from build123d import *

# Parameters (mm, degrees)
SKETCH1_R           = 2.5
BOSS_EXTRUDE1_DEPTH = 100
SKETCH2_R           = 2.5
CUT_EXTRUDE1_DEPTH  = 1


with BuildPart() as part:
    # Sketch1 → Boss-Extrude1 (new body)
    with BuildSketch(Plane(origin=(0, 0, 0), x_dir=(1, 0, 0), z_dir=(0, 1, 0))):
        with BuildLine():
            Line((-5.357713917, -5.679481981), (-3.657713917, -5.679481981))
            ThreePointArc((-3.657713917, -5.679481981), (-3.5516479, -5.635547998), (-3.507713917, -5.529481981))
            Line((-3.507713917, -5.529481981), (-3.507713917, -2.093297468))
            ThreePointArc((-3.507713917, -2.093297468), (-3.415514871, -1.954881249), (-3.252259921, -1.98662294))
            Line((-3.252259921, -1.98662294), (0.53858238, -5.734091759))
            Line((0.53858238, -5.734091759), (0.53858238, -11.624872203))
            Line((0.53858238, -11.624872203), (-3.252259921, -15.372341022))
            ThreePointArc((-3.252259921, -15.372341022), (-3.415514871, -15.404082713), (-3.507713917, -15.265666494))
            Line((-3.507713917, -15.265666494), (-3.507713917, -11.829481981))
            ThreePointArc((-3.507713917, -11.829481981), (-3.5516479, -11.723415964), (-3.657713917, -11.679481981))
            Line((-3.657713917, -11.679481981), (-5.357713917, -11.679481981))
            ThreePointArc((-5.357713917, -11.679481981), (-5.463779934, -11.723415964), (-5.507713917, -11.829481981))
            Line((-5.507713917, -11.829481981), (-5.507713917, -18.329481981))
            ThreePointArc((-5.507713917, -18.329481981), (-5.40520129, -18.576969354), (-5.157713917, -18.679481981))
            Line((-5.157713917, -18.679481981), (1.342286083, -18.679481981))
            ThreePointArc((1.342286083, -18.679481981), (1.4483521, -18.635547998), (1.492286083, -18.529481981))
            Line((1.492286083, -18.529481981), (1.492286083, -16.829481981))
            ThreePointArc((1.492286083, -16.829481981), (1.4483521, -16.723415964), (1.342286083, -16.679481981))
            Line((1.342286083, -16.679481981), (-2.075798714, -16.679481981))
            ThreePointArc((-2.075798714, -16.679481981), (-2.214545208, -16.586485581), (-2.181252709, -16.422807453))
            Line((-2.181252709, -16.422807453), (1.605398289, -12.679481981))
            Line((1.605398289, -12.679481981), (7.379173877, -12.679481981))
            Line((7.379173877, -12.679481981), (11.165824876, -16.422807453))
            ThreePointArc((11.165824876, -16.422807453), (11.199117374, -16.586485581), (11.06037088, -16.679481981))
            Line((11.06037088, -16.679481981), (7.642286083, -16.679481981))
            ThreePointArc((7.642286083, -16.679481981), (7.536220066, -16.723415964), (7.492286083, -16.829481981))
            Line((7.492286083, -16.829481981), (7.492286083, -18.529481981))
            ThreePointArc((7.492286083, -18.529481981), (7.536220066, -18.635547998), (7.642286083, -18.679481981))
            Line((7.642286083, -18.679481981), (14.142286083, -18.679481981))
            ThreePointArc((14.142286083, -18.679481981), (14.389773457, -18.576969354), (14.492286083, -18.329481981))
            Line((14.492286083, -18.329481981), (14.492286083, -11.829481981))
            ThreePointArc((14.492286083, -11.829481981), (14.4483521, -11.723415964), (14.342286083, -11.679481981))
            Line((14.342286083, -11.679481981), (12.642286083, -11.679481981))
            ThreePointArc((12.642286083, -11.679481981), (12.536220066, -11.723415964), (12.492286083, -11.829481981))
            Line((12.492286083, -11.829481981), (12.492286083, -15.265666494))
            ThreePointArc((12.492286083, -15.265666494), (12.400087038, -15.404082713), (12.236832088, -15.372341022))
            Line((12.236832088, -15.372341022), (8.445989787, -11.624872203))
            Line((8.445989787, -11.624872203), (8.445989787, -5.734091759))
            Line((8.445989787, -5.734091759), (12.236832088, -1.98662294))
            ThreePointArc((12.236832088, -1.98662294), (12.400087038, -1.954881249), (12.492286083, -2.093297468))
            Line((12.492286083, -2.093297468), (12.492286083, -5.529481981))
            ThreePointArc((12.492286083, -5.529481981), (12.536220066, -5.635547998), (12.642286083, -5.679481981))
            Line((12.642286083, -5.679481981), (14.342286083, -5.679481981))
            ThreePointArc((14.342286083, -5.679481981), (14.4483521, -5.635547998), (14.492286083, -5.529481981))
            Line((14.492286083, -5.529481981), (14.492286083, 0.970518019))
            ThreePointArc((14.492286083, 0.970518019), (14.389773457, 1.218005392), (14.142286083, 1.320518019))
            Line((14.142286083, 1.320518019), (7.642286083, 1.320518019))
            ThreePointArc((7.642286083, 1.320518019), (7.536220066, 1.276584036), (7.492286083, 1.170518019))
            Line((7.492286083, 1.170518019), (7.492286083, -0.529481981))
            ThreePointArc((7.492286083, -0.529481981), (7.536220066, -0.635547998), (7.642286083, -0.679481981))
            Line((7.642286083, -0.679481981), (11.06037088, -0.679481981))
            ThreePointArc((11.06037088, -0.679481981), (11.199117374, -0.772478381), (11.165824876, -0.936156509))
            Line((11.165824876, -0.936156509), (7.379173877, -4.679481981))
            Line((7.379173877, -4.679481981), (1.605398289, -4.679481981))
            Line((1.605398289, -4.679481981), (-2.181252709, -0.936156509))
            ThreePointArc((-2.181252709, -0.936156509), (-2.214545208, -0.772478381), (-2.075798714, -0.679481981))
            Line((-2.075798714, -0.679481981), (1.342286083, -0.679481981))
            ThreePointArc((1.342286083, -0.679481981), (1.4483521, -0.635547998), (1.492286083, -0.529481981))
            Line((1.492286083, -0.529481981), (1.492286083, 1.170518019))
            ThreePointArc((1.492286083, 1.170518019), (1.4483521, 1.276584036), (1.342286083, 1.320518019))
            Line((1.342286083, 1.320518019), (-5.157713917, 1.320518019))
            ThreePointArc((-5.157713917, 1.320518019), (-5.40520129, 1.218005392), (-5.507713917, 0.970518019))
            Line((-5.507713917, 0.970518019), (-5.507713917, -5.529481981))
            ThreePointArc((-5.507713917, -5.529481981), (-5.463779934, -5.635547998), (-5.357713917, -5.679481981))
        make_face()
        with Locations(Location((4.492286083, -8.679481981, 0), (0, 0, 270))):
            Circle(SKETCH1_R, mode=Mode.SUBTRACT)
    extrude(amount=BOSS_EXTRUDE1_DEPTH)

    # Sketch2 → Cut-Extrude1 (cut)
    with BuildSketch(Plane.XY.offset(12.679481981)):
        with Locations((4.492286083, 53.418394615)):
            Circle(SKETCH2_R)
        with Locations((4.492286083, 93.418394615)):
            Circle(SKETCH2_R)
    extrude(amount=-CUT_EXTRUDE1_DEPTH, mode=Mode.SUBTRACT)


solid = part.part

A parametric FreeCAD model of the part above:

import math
import FreeCAD as App
import Part
import Sketcher

doc = App.newDocument("Part")
body = doc.addObject("PartDesign::Body", "Body")

sketch1 = body.newObject("Sketcher::SketchObject", "Sketch")
sketch1.AttachmentSupport = (doc.getObject("XZ_Plane"), [""])
sketch1.MapMode = "FlatFace"
sketch1.addGeometry([
    Part.LineSegment(App.Vector(-5.357714, 5.679482, 0), App.Vector(-3.657714, 5.679482, 0)),
    Part.ArcOfCircle(Part.Circle(App.Vector(-3.657714, 5.529482, 0), App.Vector(0, 0, 1), 0.15), math.radians(0), math.radians(90)),
    Part.LineSegment(App.Vector(-3.507714, 5.529482, 0), App.Vector(-3.507714, 2.093297, 0)),
    Part.ArcOfCircle(Part.Circle(App.Vector(-3.357714, 2.093297, 0), App.Vector(0, 0, 1), 0.15), math.radians(-180), math.radians(-45.329662)),
    Part.LineSegment(App.Vector(-3.25226, 1.986623, 0), App.Vector(0.538582, 5.734092, 0)),
    Part.LineSegment(App.Vector(0.538582, 5.734092, 0), App.Vector(0.538582, 11.624872, 0)),
    Part.LineSegment(App.Vector(0.538582, 11.624872, 0), App.Vector(-3.25226, 15.372341, 0)),
    Part.ArcOfCircle(Part.Circle(App.Vector(-3.357714, 15.265666, 0), App.Vector(0, 0, 1), 0.15), math.radians(45.329662), math.radians(180)),
    Part.LineSegment(App.Vector(-3.507714, 15.265666, 0), App.Vector(-3.507714, 11.829482, 0)),
    Part.ArcOfCircle(Part.Circle(App.Vector(-3.657714, 11.829482, 0), App.Vector(0, 0, 1), 0.15), math.radians(-90), math.radians(0)),
    Part.LineSegment(App.Vector(-3.657714, 11.679482, 0), App.Vector(-5.357714, 11.679482, 0)),
    Part.ArcOfCircle(Part.Circle(App.Vector(-5.357714, 11.829482, 0), App.Vector(0, 0, 1), 0.15), math.radians(-180), math.radians(-90)),
    Part.LineSegment(App.Vector(-5.507714, 11.829482, 0), App.Vector(-5.507714, 18.329482, 0)),
    Part.ArcOfCircle(Part.Circle(App.Vector(-5.157714, 18.329482, 0), App.Vector(0, 0, 1), 0.35), math.radians(90), math.radians(180)),
    Part.LineSegment(App.Vector(-5.157714, 18.679482, 0), App.Vector(1.342286, 18.679482, 0)),
    Part.ArcOfCircle(Part.Circle(App.Vector(1.342286, 18.529482, 0), App.Vector(0, 0, 1), 0.15), math.radians(0), math.radians(90)),
    Part.LineSegment(App.Vector(1.492286, 18.529482, 0), App.Vector(1.492286, 16.829482, 0)),
    Part.ArcOfCircle(Part.Circle(App.Vector(1.342286, 16.829482, 0), App.Vector(0, 0, 1), 0.15), math.radians(-90), math.radians(0)),
    Part.LineSegment(App.Vector(1.342286, 16.679482, 0), App.Vector(-2.075799, 16.679482, 0)),
    Part.ArcOfCircle(Part.Circle(App.Vector(-2.075799, 16.529482, 0), App.Vector(0, 0, 1), 0.15), math.radians(90), math.radians(225.329662)),
    Part.LineSegment(App.Vector(-2.181253, 16.422807, 0), App.Vector(1.605398, 12.679482, 0)),
    Part.LineSegment(App.Vector(1.605398, 12.679482, 0), App.Vector(7.379174, 12.679482, 0)),
    Part.LineSegment(App.Vector(7.379174, 12.679482, 0), App.Vector(11.165825, 16.422807, 0)),
    Part.ArcOfCircle(Part.Circle(App.Vector(11.060371, 16.529482, 0), App.Vector(0, 0, 1), 0.15), math.radians(-45.329661), math.radians(90)),
    Part.LineSegment(App.Vector(11.060371, 16.679482, 0), App.Vector(7.642286, 16.679482, 0)),
    Part.ArcOfCircle(Part.Circle(App.Vector(7.642286, 16.829482, 0), App.Vector(0, 0, 1), 0.15), math.radians(-180), math.radians(-90)),
    Part.LineSegment(App.Vector(7.492286, 16.829482, 0), App.Vector(7.492286, 18.529482, 0)),
    Part.ArcOfCircle(Part.Circle(App.Vector(7.642286, 18.529482, 0), App.Vector(0, 0, 1), 0.15), math.radians(90), math.radians(180)),
    Part.LineSegment(App.Vector(7.642286, 18.679482, 0), App.Vector(14.142286, 18.679482, 0)),
    Part.ArcOfCircle(Part.Circle(App.Vector(14.142286, 18.329482, 0), App.Vector(0, 0, 1), 0.35), math.radians(0), math.radians(90)),
    Part.LineSegment(App.Vector(14.492286, 18.329482, 0), App.Vector(14.492286, 11.829482, 0)),
    Part.ArcOfCircle(Part.Circle(App.Vector(14.342286, 11.829482, 0), App.Vector(0, 0, 1), 0.15), math.radians(-90), math.radians(0)),
    Part.LineSegment(App.Vector(14.342286, 11.679482, 0), App.Vector(12.642286, 11.679482, 0)),
    Part.ArcOfCircle(Part.Circle(App.Vector(12.642286, 11.829482, 0), App.Vector(0, 0, 1), 0.15), math.radians(-180), math.radians(-90)),
    Part.LineSegment(App.Vector(12.492286, 11.829482, 0), App.Vector(12.492286, 15.265666, 0)),
    Part.ArcOfCircle(Part.Circle(App.Vector(12.342286, 15.265666, 0), App.Vector(0, 0, 1), 0.15), math.radians(0), math.radians(134.670338)),
    Part.LineSegment(App.Vector(12.236832, 15.372341, 0), App.Vector(8.44599, 11.624872, 0)),
    Part.LineSegment(App.Vector(8.44599, 11.624872, 0), App.Vector(8.44599, 5.734092, 0)),
    Part.LineSegment(App.Vector(8.44599, 5.734092, 0), App.Vector(12.236832, 1.986623, 0)),
    Part.ArcOfCircle(Part.Circle(App.Vector(12.342286, 2.093297, 0), App.Vector(0, 0, 1), 0.15), math.radians(-134.670338), math.radians(0)),
    Part.LineSegment(App.Vector(12.492286, 2.093297, 0), App.Vector(12.492286, 5.529482, 0)),
    Part.ArcOfCircle(Part.Circle(App.Vector(12.642286, 5.529482, 0), App.Vector(0, 0, 1), 0.15), math.radians(90), math.radians(180)),
    Part.LineSegment(App.Vector(12.642286, 5.679482, 0), App.Vector(14.342286, 5.679482, 0)),
    Part.ArcOfCircle(Part.Circle(App.Vector(14.342286, 5.529482, 0), App.Vector(0, 0, 1), 0.15), math.radians(0), math.radians(90)),
    Part.LineSegment(App.Vector(14.492286, 5.529482, 0), App.Vector(14.492286, -0.970518, 0)),
    Part.ArcOfCircle(Part.Circle(App.Vector(14.142286, -0.970518, 0), App.Vector(0, 0, 1), 0.35), math.radians(-90), math.radians(0)),
    Part.LineSegment(App.Vector(14.142286, -1.320518, 0), App.Vector(7.642286, -1.320518, 0)),
    Part.ArcOfCircle(Part.Circle(App.Vector(7.642286, -1.170518, 0), App.Vector(0, 0, 1), 0.15), math.radians(-180), math.radians(-90)),
    Part.LineSegment(App.Vector(7.492286, -1.170518, 0), App.Vector(7.492286, 0.529482, 0)),
    Part.ArcOfCircle(Part.Circle(App.Vector(7.642286, 0.529482, 0), App.Vector(0, 0, 1), 0.15), math.radians(90), math.radians(180)),
    Part.LineSegment(App.Vector(7.642286, 0.679482, 0), App.Vector(11.060371, 0.679482, 0)),
    Part.ArcOfCircle(Part.Circle(App.Vector(11.060371, 0.829482, 0), App.Vector(0, 0, 1), 0.15), math.radians(-90), math.radians(45.329661)),
    Part.LineSegment(App.Vector(11.165825, 0.936157, 0), App.Vector(7.379174, 4.679482, 0)),
    Part.LineSegment(App.Vector(7.379174, 4.679482, 0), App.Vector(1.605398, 4.679482, 0)),
    Part.LineSegment(App.Vector(1.605398, 4.679482, 0), App.Vector(-2.181253, 0.936157, 0)),
    Part.ArcOfCircle(Part.Circle(App.Vector(-2.075799, 0.829482, 0), App.Vector(0, 0, 1), 0.15), math.radians(134.670338), math.radians(270)),
    Part.LineSegment(App.Vector(-2.075799, 0.679482, 0), App.Vector(1.342286, 0.679482, 0)),
    Part.ArcOfCircle(Part.Circle(App.Vector(1.342286, 0.529482, 0), App.Vector(0, 0, 1), 0.15), math.radians(0), math.radians(90)),
    Part.LineSegment(App.Vector(1.492286, 0.529482, 0), App.Vector(1.492286, -1.170518, 0)),
    Part.ArcOfCircle(Part.Circle(App.Vector(1.342286, -1.170518, 0), App.Vector(0, 0, 1), 0.15), math.radians(-90), math.radians(0)),
    Part.LineSegment(App.Vector(1.342286, -1.320518, 0), App.Vector(-5.157714, -1.320518, 0)),
    Part.ArcOfCircle(Part.Circle(App.Vector(-5.157714, -0.970518, 0), App.Vector(0, 0, 1), 0.35), math.radians(-180), math.radians(-90)),
    Part.LineSegment(App.Vector(-5.507714, -0.970518, 0), App.Vector(-5.507714, 5.529482, 0)),
    Part.ArcOfCircle(Part.Circle(App.Vector(-5.357714, 5.529482, 0), App.Vector(0, 0, 1), 0.15), math.radians(90), math.radians(180)),
    Part.Circle(App.Vector(4.492286, 8.679482, 0), App.Vector(0, 0, 1), 2.5),
], False)
sketch1.addConstraint([
    Sketcher.Constraint("Tangent", 0, 2, 1, 2),
    Sketcher.Constraint("Tangent", 1, 1, 2, 1),
    Sketcher.Constraint("Tangent", 2, 2, 3, 1),
    Sketcher.Constraint("Tangent", 3, 2, 4, 1),
    Sketcher.Constraint("Coincident", 4, 2, 5, 1),
    Sketcher.Constraint("Coincident", 5, 2, 6, 1),
    Sketcher.Constraint("Tangent", 6, 2, 7, 1),
    Sketcher.Constraint("Tangent", 7, 2, 8, 1),
    Sketcher.Constraint("Tangent", 8, 2, 9, 2),
    Sketcher.Constraint("Tangent", 9, 1, 10, 1),
    Sketcher.Constraint("Tangent", 10, 2, 11, 2),
    Sketcher.Constraint("Tangent", 11, 1, 12, 1),
    Sketcher.Constraint("Tangent", 12, 2, 13, 2),
    Sketcher.Constraint("Tangent", 13, 1, 14, 1),
    Sketcher.Constraint("Tangent", 14, 2, 15, 2),
    Sketcher.Constraint("Tangent", 15, 1, 16, 1),
    Sketcher.Constraint("Tangent", 16, 2, 17, 2),
    Sketcher.Constraint("Tangent", 17, 1, 18, 1),
    Sketcher.Constraint("Tangent", 18, 2, 19, 1),
    Sketcher.Constraint("Tangent", 19, 2, 20, 1),
    Sketcher.Constraint("Coincident", 20, 2, 21, 1),
    Sketcher.Constraint("Coincident", 21, 2, 22, 1),
    Sketcher.Constraint("Tangent", 22, 2, 23, 1),
    Sketcher.Constraint("Tangent", 23, 2, 24, 1),
    Sketcher.Constraint("Tangent", 24, 2, 25, 2),
    Sketcher.Constraint("Tangent", 25, 1, 26, 1),
    Sketcher.Constraint("Tangent", 26, 2, 27, 2),
    Sketcher.Constraint("Tangent", 27, 1, 28, 1),
    Sketcher.Constraint("Tangent", 28, 2, 29, 2),
    Sketcher.Constraint("Tangent", 29, 1, 30, 1),
    Sketcher.Constraint("Tangent", 30, 2, 31, 2),
    Sketcher.Constraint("Tangent", 31, 1, 32, 1),
    Sketcher.Constraint("Tangent", 32, 2, 33, 2),
    Sketcher.Constraint("Tangent", 33, 1, 34, 1),
    Sketcher.Constraint("Tangent", 34, 2, 35, 1),
    Sketcher.Constraint("Tangent", 35, 2, 36, 1),
    Sketcher.Constraint("Coincident", 36, 2, 37, 1),
    Sketcher.Constraint("Coincident", 37, 2, 38, 1),
    Sketcher.Constraint("Tangent", 38, 2, 39, 1),
    Sketcher.Constraint("Tangent", 39, 2, 40, 1),
    Sketcher.Constraint("Tangent", 40, 2, 41, 2),
    Sketcher.Constraint("Tangent", 41, 1, 42, 1),
    Sketcher.Constraint("Tangent", 42, 2, 43, 2),
    Sketcher.Constraint("Tangent", 43, 1, 44, 1),
    Sketcher.Constraint("Tangent", 44, 2, 45, 2),
    Sketcher.Constraint("Tangent", 45, 1, 46, 1),
    Sketcher.Constraint("Tangent", 46, 2, 47, 2),
    Sketcher.Constraint("Tangent", 47, 1, 48, 1),
    Sketcher.Constraint("Tangent", 48, 2, 49, 2),
    Sketcher.Constraint("Tangent", 49, 1, 50, 1),
    Sketcher.Constraint("Tangent", 50, 2, 51, 1),
    Sketcher.Constraint("Tangent", 51, 2, 52, 1),
    Sketcher.Constraint("Coincident", 52, 2, 53, 1),
    Sketcher.Constraint("Coincident", 53, 2, 54, 1),
    Sketcher.Constraint("Tangent", 54, 2, 55, 1),
    Sketcher.Constraint("Tangent", 55, 2, 56, 1),
    Sketcher.Constraint("Tangent", 56, 2, 57, 2),
    Sketcher.Constraint("Tangent", 57, 1, 58, 1),
    Sketcher.Constraint("Tangent", 58, 2, 59, 2),
    Sketcher.Constraint("Tangent", 59, 1, 60, 1),
    Sketcher.Constraint("Tangent", 60, 2, 61, 2),
    Sketcher.Constraint("Tangent", 61, 1, 62, 1),
    Sketcher.Constraint("Tangent", 62, 2, 63, 2),
    Sketcher.Constraint("Tangent", 63, 1, 0, 1),
    Sketcher.Constraint("Horizontal", 0),
    Sketcher.Constraint("Vertical", 2),
    Sketcher.Constraint("Vertical", 5),
    Sketcher.Constraint("Vertical", 8),
    Sketcher.Constraint("Horizontal", 10),
    Sketcher.Constraint("Vertical", 12),
    Sketcher.Constraint("Horizontal", 14),
    Sketcher.Constraint("Vertical", 16),
    Sketcher.Constraint("Horizontal", 18),
    Sketcher.Constraint("Horizontal", 21),
    Sketcher.Constraint("Horizontal", 24),
    Sketcher.Constraint("Vertical", 26),
    Sketcher.Constraint("Horizontal", 28),
    Sketcher.Constraint("Vertical", 30),
    Sketcher.Constraint("Horizontal", 32),
    Sketcher.Constraint("Vertical", 34),
    Sketcher.Constraint("Vertical", 37),
    Sketcher.Constraint("Vertical", 40),
    Sketcher.Constraint("Horizontal", 42),
    Sketcher.Constraint("Vertical", 44),
    Sketcher.Constraint("Horizontal", 46),
    Sketcher.Constraint("Vertical", 48),
    Sketcher.Constraint("Horizontal", 50),
    Sketcher.Constraint("Horizontal", 53),
    Sketcher.Constraint("Horizontal", 56),
    Sketcher.Constraint("Vertical", 58),
    Sketcher.Constraint("Horizontal", 60),
    Sketcher.Constraint("Vertical", 62),
    Sketcher.Constraint("Equal", 1, 3),
    Sketcher.Constraint("Equal", 3, 7),
    Sketcher.Constraint("Equal", 7, 9),
    Sketcher.Constraint("Equal", 9, 11),
    Sketcher.Constraint("Equal", 11, 15),
    Sketcher.Constraint("Equal", 15, 17),
    Sketcher.Constraint("Equal", 17, 19),
    Sketcher.Constraint("Equal", 19, 23),
    Sketcher.Constraint("Equal", 23, 25),
    Sketcher.Constraint("Equal", 25, 27),
    Sketcher.Constraint("Equal", 13, 29),
    Sketcher.Constraint("Equal", 27, 31),
    Sketcher.Constraint("Equal", 31, 33),
    Sketcher.Constraint("Equal", 33, 35),
    Sketcher.Constraint("Equal", 35, 39),
    Sketcher.Constraint("Equal", 39, 41),
    Sketcher.Constraint("Equal", 41, 43),
    Sketcher.Constraint("Equal", 29, 45),
    Sketcher.Constraint("Equal", 43, 47),
    Sketcher.Constraint("Equal", 47, 49),
    Sketcher.Constraint("Equal", 49, 51),
    Sketcher.Constraint("Equal", 51, 55),
    Sketcher.Constraint("Equal", 55, 57),
    Sketcher.Constraint("Equal", 57, 59),
    Sketcher.Constraint("Equal", 45, 61),
    Sketcher.Constraint("Equal", 59, 63),
    Sketcher.Constraint("Parallel", 6, 20),
    Sketcher.Constraint("Parallel", 4, 22),
    Sketcher.Constraint("Parallel", 22, 36),
    Sketcher.Constraint("Parallel", 20, 38),
    Sketcher.Constraint("Parallel", 38, 52),
    Sketcher.Constraint("Parallel", 36, 54),
    Sketcher.Constraint("Horizontal", 19, 3, 23, 3),
    Sketcher.Constraint("Horizontal", 15, 3, 27, 3),
    Sketcher.Constraint("Horizontal", 11, 3, 31, 3),
    Sketcher.Constraint("Horizontal", 7, 3, 35, 3),
    Sketcher.Constraint("Horizontal", 3, 3, 39, 3),
    Sketcher.Constraint("Horizontal", 1, 3, 41, 3),
    Sketcher.Constraint("Horizontal", 51, 3, 55, 3),
    Sketcher.Constraint("Horizontal", 47, 3, 59, 3),
    Sketcher.Constraint("Horizontal", 19, 2, 22, 2),
    Sketcher.Constraint("Horizontal", 5, 2, 36, 2),
    Sketcher.Constraint("Horizontal", 4, 2, 37, 2),
    Sketcher.Constraint("Vertical", 3, 3, 7, 3),
    Sketcher.Constraint("Vertical", 31, 3, 43, 3),
    Sketcher.Constraint("Vertical", 27, 3, 47, 3),
    Sketcher.Constraint("Vertical", 23, 3, 51, 3),
    Sketcher.Constraint("Vertical", 19, 3, 55, 3),
    Sketcher.Constraint("Vertical", 17, 3, 57, 3),
    Sketcher.Constraint("Vertical", 13, 3, 61, 3),
    Sketcher.Constraint("Vertical", 21, 2, 52, 2),
    Sketcher.Constraint("Equal", 18, 24),
    Sketcher.Constraint("Equal", 14, 28),
    Sketcher.Constraint("Equal", 10, 32),
    Sketcher.Constraint("Equal", 2, 8),
    Sketcher.Constraint("Equal", 60, 12),
    Sketcher.Constraint("Equal", 42, 16),
    Sketcher.Constraint("Equal", 30, 44),
    Sketcher.Constraint("Equal", 26, 48),
    Sketcher.Constraint("Diameter", 64, 5.0),
    Sketcher.Constraint("Radius", 1, 0.15),
    Sketcher.Constraint("Radius", 13, 0.35),
    Sketcher.Constraint("DistanceX", 0, 1, 0, 2, 1.7),
    Sketcher.Constraint("DistanceX", 14, 1, 14, 2, 6.5),
    Sketcher.Constraint("DistanceY", 5, 1, 5, 2, 5.89078),
    Sketcher.Constraint("DistanceX", 19, 3, -1, 1, 2.075799),
    Sketcher.Constraint("DistanceX", -1, 1, 20, 2, 1.605398),
    Sketcher.Constraint("Distance", 4, 5.330479),
    Sketcher.Constraint("DistanceX", 18, 2, 18, 1, 3.418085),
    Sketcher.Constraint("DistanceX", 21, 1, 21, 2, 5.773776),
    Sketcher.Constraint("DistanceY", 2, 2, 2, 1, 3.436185),
    Sketcher.Constraint("DistanceY", -1, 1, 1, 3, 5.529482),
    Sketcher.Constraint("DistanceY", -1, 1, 9, 3, 11.829482),
    Sketcher.Constraint("DistanceY", -1, 1, 64, 3, 8.679482),
    Sketcher.Constraint("DistanceX", -1, 1, 64, 3, 4.492286),
])
pad1 = body.newObject("PartDesign::Pad", "Pad")
pad1.Profile = sketch1
pad1.Length = 100
pad1.Reversed = True

sketch2 = body.newObject("Sketcher::SketchObject", "Sketch001")
sketch2.AttachmentSupport = (doc.getObject("XY_Plane"), [""])
sketch2.MapMode = "FlatFace"
sketch2.AttachmentOffset = App.Placement(App.Vector(0, 0, 12.679482), App.Rotation())
sketch2.addGeometry([
    Part.Circle(App.Vector(4.492286, 53.418395, 0), App.Vector(0, 0, 1), 2.5),
    Part.Circle(App.Vector(4.492286, 93.418395, 0), App.Vector(0, 0, 1), 2.5),
], False)
sketch2.addConstraint([
    Sketcher.Constraint("Equal", 0, 1),
    Sketcher.Constraint("Vertical", 0, 3, 1, 3),
    Sketcher.Constraint("Diameter", 0, 5.0),
    Sketcher.Constraint("DistanceY", 0, 3, 1, 3, 40.0),
    Sketcher.Constraint("DistanceX", -1, 1, 0, 3, 4.492286),
    Sketcher.Constraint("DistanceY", -1, 1, 0, 3, 53.418395),
])
pocket1 = body.newObject("PartDesign::Pocket", "Pocket")
pocket1.Profile = sketch2
pocket1.Length = 1

doc.recompute()
